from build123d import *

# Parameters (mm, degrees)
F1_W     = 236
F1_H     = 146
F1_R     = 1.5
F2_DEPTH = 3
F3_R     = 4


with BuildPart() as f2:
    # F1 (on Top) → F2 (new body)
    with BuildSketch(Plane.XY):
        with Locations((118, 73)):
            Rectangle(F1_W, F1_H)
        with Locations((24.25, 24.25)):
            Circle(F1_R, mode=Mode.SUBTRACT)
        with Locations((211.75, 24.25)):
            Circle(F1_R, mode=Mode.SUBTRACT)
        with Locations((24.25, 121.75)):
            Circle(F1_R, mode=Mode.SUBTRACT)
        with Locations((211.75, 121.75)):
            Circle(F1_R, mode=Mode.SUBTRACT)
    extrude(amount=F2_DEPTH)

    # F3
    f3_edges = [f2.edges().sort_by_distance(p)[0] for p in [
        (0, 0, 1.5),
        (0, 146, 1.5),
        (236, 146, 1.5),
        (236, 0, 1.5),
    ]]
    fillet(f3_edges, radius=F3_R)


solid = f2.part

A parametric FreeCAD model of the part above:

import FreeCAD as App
import Part
import Sketcher


def edges_at(feature, points):
    """Names of the edges that pass closest to the given points."""
    edges = feature.Shape.Edges
    near = lambda p: min(range(len(edges)), key=lambda i: edges[i].distToShape(Part.Vertex(*p))[0])
    return sorted({f"Edge{near(p) + 1}" for p in points})


def add_polygon(sketch, points):
    """Adds a closed chain of lines whose ends are joined by coincident constraints."""
    first, n = sketch.GeometryCount, len(points)
    for a, b in zip(points, points[1:] + points[:1]):
        sketch.addGeometry(Part.LineSegment(App.Vector(*a, 0), App.Vector(*b, 0)), False)
    for i in range(n):
        sketch.addConstraint(Sketcher.Constraint("Coincident", first + i, 2, first + (i + 1) % n, 1))

doc = App.newDocument("Part")
params = doc.addObject("Spreadsheet::Sheet", "Params")
for row, (alias, value) in enumerate([
    ("sketch1_diameter", "3 mm"),
    ("sketch1_width", "236 mm"),
    ("sketch1_height", "146 mm"),
    ("pad1_length", "3 mm"),
    ("fillet_radius", "4 mm"),
], start=1):
    params.set(f"A{row}", alias)
    params.set(f"B{row}", "=" + value)
    params.setAlias(f"B{row}", alias)

body = doc.addObject("PartDesign::Body", "Body")

sketch1 = body.newObject("Sketcher::SketchObject", "Sketch")
sketch1.AttachmentSupport = (doc.getObject("XY_Plane"), [""])
sketch1.MapMode = "FlatFace"
add_polygon(sketch1, [(0, 146), (0, 0), (236, 0), (236, 146)])
sketch1.addGeometry(Part.Circle(App.Vector(24.2, 24.2, 0), App.Vector(0, 0, 1), 1.5), False)
sketch1.addGeometry(Part.Circle(App.Vector(211.8, 24.2, 0), App.Vector(0, 0, 1), 1.5), False)
sketch1.addGeometry(Part.Circle(App.Vector(24.2, 121.8, 0), App.Vector(0, 0, 1), 1.5), False)
sketch1.addGeometry(Part.Circle(App.Vector(211.8, 121.8, 0), App.Vector(0, 0, 1), 1.5), False)
sketch1.addConstraint(Sketcher.Constraint("Vertical", 0))
sketch1.addConstraint(Sketcher.Constraint("Horizontal", 1))
sketch1.addConstraint(Sketcher.Constraint("Vertical", 2))
sketch1.addConstraint(Sketcher.Constraint("Horizontal", 3))
sketch1.addConstraint(Sketcher.Constraint("Coincident", 0, 2, -1, 1))
sketch1.addConstraint(Sketcher.Constraint("Equal", 4, 5))
sketch1.addConstraint(Sketcher.Constraint("Equal", 5, 6))
sketch1.addConstraint(Sketcher.Constraint("Equal", 6, 7))
sketch1.addConstraint(Sketcher.Constraint("Horizontal", 4, 3, 5, 3))
sketch1.addConstraint(Sketcher.Constraint("Horizontal", 6, 3, 7, 3))
sketch1.addConstraint(Sketcher.Constraint("Vertical", 4, 3, 6, 3))
sketch1.addConstraint(Sketcher.Constraint("Vertical", 5, 3, 7, 3))
sketch1.addConstraint(Sketcher.Constraint("Diameter", 4, 3.0))
sketch1.addConstraint(Sketcher.Constraint("DistanceX", 1, 1, 1, 2, 236.0))
sketch1.addConstraint(Sketcher.Constraint("DistanceY", 0, 2, 0, 1, 146.0))
sketch1.addConstraint(Sketcher.Constraint("DistanceX", 4, 3, 5, 3, 187.5))
sketch1.addConstraint(Sketcher.Constraint("DistanceY", 4, 3, 6, 3, 97.5))
sketch1.addConstraint(Sketcher.Constraint("DistanceX", -1, 1, 4, 3, 24.25))
sketch1.addConstraint(Sketcher.Constraint("DistanceY", -1, 1, 4, 3, 24.25))
sketch1.setExpression("Constraints[16]", "Params.sketch1_diameter")
sketch1.setExpression("Constraints[17]", "Params.sketch1_width")
sketch1.setExpression("Constraints[18]", "Params.sketch1_height")
pad1 = body.newObject("PartDesign::Pad", "Pad")
pad1.Profile = sketch1
pad1.setExpression("Length", "Params.pad1_length")
doc.recompute()

fillet = body.newObject("PartDesign::Fillet", "Fillet")
fillet.Base = (pad1, edges_at(pad1, [
    (0, 0, 1.5),
    (0, 146, 1.5),
    (236, 146, 1.5),
    (236, 0, 1.5),
]))
fillet.setExpression("Radius", "Params.fillet_radius")

doc.recompute()
